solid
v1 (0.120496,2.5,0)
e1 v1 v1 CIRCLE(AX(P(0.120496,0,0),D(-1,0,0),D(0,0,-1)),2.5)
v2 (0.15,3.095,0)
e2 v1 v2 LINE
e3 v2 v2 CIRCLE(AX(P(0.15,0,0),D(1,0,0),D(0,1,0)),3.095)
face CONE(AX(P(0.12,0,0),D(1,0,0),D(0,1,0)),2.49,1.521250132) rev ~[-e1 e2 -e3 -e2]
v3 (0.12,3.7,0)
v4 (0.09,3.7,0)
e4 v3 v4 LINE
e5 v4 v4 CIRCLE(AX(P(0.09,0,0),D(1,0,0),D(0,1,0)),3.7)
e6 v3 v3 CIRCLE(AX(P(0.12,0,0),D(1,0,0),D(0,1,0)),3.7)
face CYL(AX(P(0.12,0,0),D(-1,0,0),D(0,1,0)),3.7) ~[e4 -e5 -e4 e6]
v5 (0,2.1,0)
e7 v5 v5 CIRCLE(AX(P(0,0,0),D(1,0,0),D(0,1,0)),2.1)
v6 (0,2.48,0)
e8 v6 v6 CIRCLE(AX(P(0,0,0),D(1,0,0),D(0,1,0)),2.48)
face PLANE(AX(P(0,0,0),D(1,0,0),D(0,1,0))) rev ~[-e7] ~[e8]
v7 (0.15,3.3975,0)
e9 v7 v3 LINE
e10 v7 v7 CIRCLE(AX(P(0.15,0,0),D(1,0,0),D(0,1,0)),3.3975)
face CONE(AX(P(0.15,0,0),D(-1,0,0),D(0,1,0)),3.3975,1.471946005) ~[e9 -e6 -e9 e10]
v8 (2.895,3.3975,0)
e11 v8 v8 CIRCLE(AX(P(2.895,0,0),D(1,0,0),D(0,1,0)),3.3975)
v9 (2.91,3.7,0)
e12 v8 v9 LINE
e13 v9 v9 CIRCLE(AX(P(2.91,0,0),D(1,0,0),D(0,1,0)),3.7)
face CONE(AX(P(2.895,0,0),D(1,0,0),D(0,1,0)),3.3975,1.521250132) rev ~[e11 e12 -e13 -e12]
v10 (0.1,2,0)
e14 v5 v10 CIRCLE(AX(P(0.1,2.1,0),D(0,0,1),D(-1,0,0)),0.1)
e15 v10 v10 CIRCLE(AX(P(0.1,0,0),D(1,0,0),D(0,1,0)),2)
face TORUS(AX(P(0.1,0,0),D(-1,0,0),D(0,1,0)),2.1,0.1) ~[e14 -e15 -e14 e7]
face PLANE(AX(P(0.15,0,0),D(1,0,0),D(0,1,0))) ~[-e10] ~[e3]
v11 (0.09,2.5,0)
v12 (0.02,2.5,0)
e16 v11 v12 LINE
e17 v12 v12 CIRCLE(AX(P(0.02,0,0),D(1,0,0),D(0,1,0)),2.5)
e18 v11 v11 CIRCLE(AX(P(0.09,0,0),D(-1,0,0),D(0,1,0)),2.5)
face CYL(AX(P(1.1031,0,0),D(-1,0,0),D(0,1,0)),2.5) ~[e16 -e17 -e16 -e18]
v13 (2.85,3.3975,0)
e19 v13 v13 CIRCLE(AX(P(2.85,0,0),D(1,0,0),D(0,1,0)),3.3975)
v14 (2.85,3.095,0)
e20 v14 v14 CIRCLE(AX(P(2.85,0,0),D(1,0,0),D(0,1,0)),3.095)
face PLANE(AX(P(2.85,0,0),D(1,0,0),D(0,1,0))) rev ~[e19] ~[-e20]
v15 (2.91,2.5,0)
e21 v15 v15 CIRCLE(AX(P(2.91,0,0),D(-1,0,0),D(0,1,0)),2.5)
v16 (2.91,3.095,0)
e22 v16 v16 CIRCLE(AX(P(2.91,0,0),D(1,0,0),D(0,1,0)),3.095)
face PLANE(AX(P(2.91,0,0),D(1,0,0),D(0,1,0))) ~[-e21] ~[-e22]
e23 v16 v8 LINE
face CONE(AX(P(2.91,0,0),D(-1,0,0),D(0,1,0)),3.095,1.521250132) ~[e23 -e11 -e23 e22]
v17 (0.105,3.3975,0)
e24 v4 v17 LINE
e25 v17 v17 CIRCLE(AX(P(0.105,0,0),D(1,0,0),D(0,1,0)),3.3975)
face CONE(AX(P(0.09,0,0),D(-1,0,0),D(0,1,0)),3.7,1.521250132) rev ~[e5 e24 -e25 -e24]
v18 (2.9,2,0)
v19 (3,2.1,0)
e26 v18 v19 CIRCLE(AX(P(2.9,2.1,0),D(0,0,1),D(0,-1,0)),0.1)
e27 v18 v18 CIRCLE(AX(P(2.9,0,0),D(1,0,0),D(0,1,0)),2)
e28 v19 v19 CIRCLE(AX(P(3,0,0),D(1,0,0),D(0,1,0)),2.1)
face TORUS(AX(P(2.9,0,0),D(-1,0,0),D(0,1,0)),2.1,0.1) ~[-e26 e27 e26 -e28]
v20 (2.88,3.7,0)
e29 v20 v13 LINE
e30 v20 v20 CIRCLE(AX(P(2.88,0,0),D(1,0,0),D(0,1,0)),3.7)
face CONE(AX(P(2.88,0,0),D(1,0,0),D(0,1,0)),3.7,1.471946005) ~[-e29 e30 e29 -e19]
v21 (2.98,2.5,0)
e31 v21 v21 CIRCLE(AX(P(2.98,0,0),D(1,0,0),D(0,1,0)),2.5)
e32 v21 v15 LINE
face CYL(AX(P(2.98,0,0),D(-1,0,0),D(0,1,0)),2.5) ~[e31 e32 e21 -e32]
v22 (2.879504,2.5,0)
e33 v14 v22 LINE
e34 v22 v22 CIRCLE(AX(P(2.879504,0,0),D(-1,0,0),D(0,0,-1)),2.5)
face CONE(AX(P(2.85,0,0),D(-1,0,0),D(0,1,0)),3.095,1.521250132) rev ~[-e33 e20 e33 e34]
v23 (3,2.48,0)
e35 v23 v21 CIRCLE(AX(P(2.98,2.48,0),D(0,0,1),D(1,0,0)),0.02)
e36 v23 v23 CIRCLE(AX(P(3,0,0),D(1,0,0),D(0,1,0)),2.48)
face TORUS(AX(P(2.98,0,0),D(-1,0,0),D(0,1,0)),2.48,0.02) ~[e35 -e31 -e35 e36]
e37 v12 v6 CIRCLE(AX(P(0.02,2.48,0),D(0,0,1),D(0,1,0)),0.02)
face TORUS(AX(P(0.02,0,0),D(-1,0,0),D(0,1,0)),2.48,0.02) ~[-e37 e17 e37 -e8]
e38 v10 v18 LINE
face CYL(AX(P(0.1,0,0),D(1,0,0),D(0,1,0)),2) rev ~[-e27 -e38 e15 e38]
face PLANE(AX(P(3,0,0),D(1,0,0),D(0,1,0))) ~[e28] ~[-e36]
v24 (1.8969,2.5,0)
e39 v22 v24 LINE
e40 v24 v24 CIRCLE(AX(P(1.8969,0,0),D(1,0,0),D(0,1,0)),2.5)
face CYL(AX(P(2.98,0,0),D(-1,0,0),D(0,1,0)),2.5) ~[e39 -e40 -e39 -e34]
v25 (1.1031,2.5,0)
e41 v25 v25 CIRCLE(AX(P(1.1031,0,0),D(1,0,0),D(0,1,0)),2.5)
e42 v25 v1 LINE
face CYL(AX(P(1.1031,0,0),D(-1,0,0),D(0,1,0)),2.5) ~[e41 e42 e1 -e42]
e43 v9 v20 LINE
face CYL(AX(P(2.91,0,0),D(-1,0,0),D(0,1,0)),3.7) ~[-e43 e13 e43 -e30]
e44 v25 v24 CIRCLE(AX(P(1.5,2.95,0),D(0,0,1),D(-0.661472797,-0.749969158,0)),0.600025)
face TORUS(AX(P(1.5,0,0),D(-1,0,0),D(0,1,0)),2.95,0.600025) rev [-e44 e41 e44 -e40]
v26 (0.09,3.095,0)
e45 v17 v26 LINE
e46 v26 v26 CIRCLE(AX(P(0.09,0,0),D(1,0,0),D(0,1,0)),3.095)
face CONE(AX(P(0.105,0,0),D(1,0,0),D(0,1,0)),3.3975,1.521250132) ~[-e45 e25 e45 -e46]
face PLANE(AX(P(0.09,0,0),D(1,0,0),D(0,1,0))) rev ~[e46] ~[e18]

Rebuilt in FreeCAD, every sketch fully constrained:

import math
import FreeCAD as App
import Part
import Sketcher

V = App.Vector
Q = App.Units.Quantity

doc = App.newDocument("Part")
params = doc.addObject("Spreadsheet::Sheet", "Params")
for row, (alias, value) in enumerate([
    ("sketch1_radius", "0.1 mm"),
    ("sketch1_radius2", "0.6 mm"),
    ("sketch1_radius3", "0.02 mm"),
    ("sketch1_width", "2.8 mm"),
    ("sketch1_height", "0.38 mm"),
    ("revolution_angle", "360 deg"),
    ("sketch2_width", "0.03 mm"),
    ("revolution2_angle", "360 deg"),
    ("sketch3_width", "0.03 mm"),
    ("revolution3_angle", "360 deg"),
], start=1):
    params.set(f"A{row}", alias)
    params.set(f"B{row}", "=" + value)
    params.setAlias(f"B{row}", alias)

body = doc.addObject("PartDesign::Body", "Body")

# Sketch on XY plane
sketch1 = body.newObject("Sketcher::SketchObject", "Sketch")
sketch1.AttachmentSupport = (doc.getObject("XY_Plane"), [""])
sketch1.MapMode = "FlatFace"
sketch1.addGeometry([
    Part.ArcOfCircle(Part.Circle(V(0.02, 2.48, 0), V(0, 0, 1), 0.02), math.radians(90), math.radians(180)),  # 0
    Part.LineSegment(V(0, 2.48, 0), V(0, 2.1, 0)),  # 1
    Part.ArcOfCircle(Part.Circle(V(0.1, 2.1, 0), V(0, 0, 1), 0.1), math.radians(180), math.radians(270)),  # 2
    Part.LineSegment(V(0.1, 2, 0), V(2.9, 2, 0)),  # 3
    Part.ArcOfCircle(Part.Circle(V(2.9, 2.1, 0), V(0, 0, 1), 0.1), math.radians(-90), math.radians(0)),  # 4
    Part.LineSegment(V(3, 2.1, 0), V(3, 2.48, 0)),  # 5
    Part.ArcOfCircle(Part.Circle(V(2.98, 2.48, 0), V(0, 0, 1), 0.02), math.radians(0), math.radians(90)),  # 6
    Part.LineSegment(V(2.98, 2.5, 0), V(1.897, 2.5, 0)),  # 7
    Part.ArcOfCircle(Part.Circle(V(1.5, 2.95, 0), V(0, 0, 1), 0.6), math.radians(-131), math.radians(-49)),  # 8
    Part.LineSegment(V(1.103, 2.5, 0), V(0.02, 2.5, 0)),  # 9
], False)
sketch1.addConstraint([
    Sketcher.Constraint("Tangent", 0, 2, 1, 1),
    Sketcher.Constraint("Tangent", 1, 2, 2, 1),
    Sketcher.Constraint("Tangent", 2, 2, 3, 1),
    Sketcher.Constraint("Tangent", 3, 2, 4, 1),
    Sketcher.Constraint("Tangent", 4, 2, 5, 1),
    Sketcher.Constraint("Tangent", 5, 2, 6, 1),
    Sketcher.Constraint("Tangent", 6, 2, 7, 1),
    Sketcher.Constraint("Coincident", 7, 2, 8, 2),
    Sketcher.Constraint("Coincident", 8, 1, 9, 1),
    Sketcher.Constraint("Tangent", 9, 2, 0, 1),
    Sketcher.Constraint("Vertical", 1),
    Sketcher.Constraint("Horizontal", 3),
    Sketcher.Constraint("Vertical", 5),
    Sketcher.Constraint("Horizontal", 7),
    Sketcher.Constraint("Horizontal", 9),
    Sketcher.Constraint("Equal", 2, 4),
    Sketcher.Constraint("Equal", 0, 6),
    Sketcher.Constraint("PointOnObject", 0, 2, -2),
    Sketcher.Constraint("Horizontal", 0, 3, 6, 3),
    Sketcher.Constraint("Equal", 7, 9),
    Sketcher.Constraint("Radius", 2, Q("0.1 mm")),
    Sketcher.Constraint("Radius", 8, Q("0.6 mm")),
    Sketcher.Constraint("Radius", 0, Q("0.02 mm")),
    Sketcher.Constraint("DistanceX", 3, 1, 3, 2, Q("2.8 mm")),
    Sketcher.Constraint("DistanceY", -1, 1, 2, 2, Q("2 mm")),
    Sketcher.Constraint("DistanceY", 1, 2, 1, 1, Q("0.38 mm")),
    Sketcher.Constraint("DistanceX", 7, 2, 7, 1, Q("1.083 mm")),
])
sketch1.setExpression("Constraints[20]", "Params.sketch1_radius")
sketch1.setExpression("Constraints[21]", "Params.sketch1_radius2")
sketch1.setExpression("Constraints[22]", "Params.sketch1_radius3")
sketch1.setExpression("Constraints[23]", "Params.sketch1_width")
sketch1.setExpression("Constraints[25]", "Params.sketch1_height")
revolution = body.newObject("PartDesign::Revolution", "Revolution")
revolution.Profile = sketch1
revolution.ReferenceAxis = (sketch1, ["H_Axis"])
revolution.setExpression("Angle", "Params.revolution_angle")

# Sketch on XY plane
sketch2 = body.newObject("Sketcher::SketchObject", "Sketch001")
sketch2.AttachmentSupport = (doc.getObject("XY_Plane"), [""])
sketch2.MapMode = "FlatFace"
sketch2.addGeometry([
    Part.LineSegment(V(0.12, 3.7, 0), V(0.09, 3.7, 0)),  # 0
    Part.LineSegment(V(0.09, 3.7, 0), V(0.105, 3.397, 0)),  # 1
    Part.LineSegment(V(0.105, 3.397, 0), V(0.09, 3.095, 0)),  # 2
    Part.LineSegment(V(0.09, 3.095, 0), V(0.09, 2.49, 0)),  # 3
    Part.LineSegment(V(0.09, 2.49, 0), V(0.12, 2.49, 0)),  # 4
    Part.LineSegment(V(0.12, 2.49, 0), V(0.15, 3.095, 0)),  # 5
    Part.LineSegment(V(0.15, 3.095, 0), V(0.15, 3.397, 0)),  # 6
    Part.LineSegment(V(0.15, 3.397, 0), V(0.12, 3.7, 0)),  # 7
], False)
sketch2.addConstraint([
    Sketcher.Constraint("Coincident", 0, 2, 1, 1),
    Sketcher.Constraint("Coincident", 1, 2, 2, 1),
    Sketcher.Constraint("Coincident", 2, 2, 3, 1),
    Sketcher.Constraint("Coincident", 3, 2, 4, 1),
    Sketcher.Constraint("Coincident", 4, 2, 5, 1),
    Sketcher.Constraint("Coincident", 5, 2, 6, 1),
    Sketcher.Constraint("Coincident", 6, 2, 7, 1),
    Sketcher.Constraint("Coincident", 7, 2, 0, 1),
    Sketcher.Constraint("Horizontal", 0),
    Sketcher.Constraint("Vertical", 3),
    Sketcher.Constraint("Horizontal", 4),
    Sketcher.Constraint("Vertical", 6),
    Sketcher.Constraint("Parallel", 2, 5),
    Sketcher.Constraint("Horizontal", 2, 2, 5, 2),
    Sketcher.Constraint("Horizontal", 1, 2, 6, 2),
    Sketcher.Constraint("Vertical", 0, 2, 2, 2),
    Sketcher.Constraint("Vertical", 4, 2, 7, 2),
    Sketcher.Constraint("Equal", 1, 2),
    Sketcher.Constraint("DistanceX", 0, 2, 0, 1, Q("0.03 mm")),
    Sketcher.Constraint("DistanceY", -1, 1, 0, 2, Q("3.7 mm")),
    Sketcher.Constraint("DistanceY", 3, 2, 3, 1, Q("0.605 mm")),
    Sketcher.Constraint("DistanceX", -1, 1, 0, 2, Q("0.09 mm")),
    Sketcher.Constraint("DistanceY", -1, 1, 3, 2, Q("2.49 mm")),
    Sketcher.Constraint("DistanceX", -1, 1, 5, 2, Q("0.15 mm")),
])
sketch2.setExpression("Constraints[18]", "Params.sketch2_width")
revolution2 = body.newObject("PartDesign::Revolution", "Revolution001")
revolution2.Profile = sketch2
revolution2.ReferenceAxis = (sketch2, ["H_Axis"])
revolution2.setExpression("Angle", "Params.revolution2_angle")

# Sketch on XY plane
sketch3 = body.newObject("Sketcher::SketchObject", "Sketch002")
sketch3.AttachmentSupport = (doc.getObject("XY_Plane"), [""])
sketch3.MapMode = "FlatFace"
sketch3.addGeometry([
    Part.LineSegment(V(2.88, 3.7, 0), V(2.85, 3.397, 0)),  # 0
    Part.LineSegment(V(2.85, 3.397, 0), V(2.85, 3.095, 0)),  # 1
    Part.LineSegment(V(2.85, 3.095, 0), V(2.88, 2.49, 0)),  # 2
    Part.LineSegment(V(2.88, 2.49, 0), V(2.91, 2.49, 0)),  # 3
    Part.LineSegment(V(2.91, 2.49, 0), V(2.91, 3.095, 0)),  # 4
    Part.LineSegment(V(2.91, 3.095, 0), V(2.895, 3.397, 0)),  # 5
    Part.LineSegment(V(2.895, 3.397, 0), V(2.91, 3.7, 0)),  # 6
    Part.LineSegment(V(2.91, 3.7, 0), V(2.88, 3.7, 0)),  # 7
], False)
sketch3.addConstraint([
    Sketcher.Constraint("Coincident", 0, 2, 1, 1),
    Sketcher.Constraint("Coincident", 1, 2, 2, 1),
    Sketcher.Constraint("Coincident", 2, 2, 3, 1),
    Sketcher.Constraint("Coincident", 3, 2, 4, 1),
    Sketcher.Constraint("Coincident", 4, 2, 5, 1),
    Sketcher.Constraint("Coincident", 5, 2, 6, 1),
    Sketcher.Constraint("Coincident", 6, 2, 7, 1),
    Sketcher.Constraint("Coincident", 7, 2, 0, 1),
    Sketcher.Constraint("Vertical", 1),
    Sketcher.Constraint("Horizontal", 3),
    Sketcher.Constraint("Vertical", 4),
    Sketcher.Constraint("Horizontal", 7),
    Sketcher.Constraint("Parallel", 2, 5),
    Sketcher.Constraint("Horizontal", 1, 2, 4, 2),
    Sketcher.Constraint("Horizontal", 0, 2, 5, 2),
    Sketcher.Constraint("Vertical", 4, 2, 6, 2),
    Sketcher.Constraint("Vertical", 2, 2, 7, 2),
    Sketcher.Constraint("Equal", 5, 6),
    Sketcher.Constraint("DistanceX", 3, 1, 3, 2, Q("0.03 mm")),
    Sketcher.Constraint("DistanceY", -1, 1, 6, 2, Q("3.7 mm")),
    Sketcher.Constraint("DistanceY", 4, 1, 4, 2, Q("0.605 mm")),
    Sketcher.Constraint("DistanceX", -1, 1, 0, 2, Q("2.85 mm")),
    Sketcher.Constraint("DistanceX", -1, 1, 2, 2, Q("2.88 mm")),
    Sketcher.Constraint("DistanceY", -1, 1, 2, 2, Q("2.49 mm")),
])
sketch3.setExpression("Constraints[18]", "Params.sketch3_width")
revolution3 = body.newObject("PartDesign::Revolution", "Revolution002")
revolution3.Profile = sketch3
revolution3.ReferenceAxis = (sketch3, ["H_Axis"])
revolution3.setExpression("Angle", "Params.revolution3_angle")

doc.recompute()
